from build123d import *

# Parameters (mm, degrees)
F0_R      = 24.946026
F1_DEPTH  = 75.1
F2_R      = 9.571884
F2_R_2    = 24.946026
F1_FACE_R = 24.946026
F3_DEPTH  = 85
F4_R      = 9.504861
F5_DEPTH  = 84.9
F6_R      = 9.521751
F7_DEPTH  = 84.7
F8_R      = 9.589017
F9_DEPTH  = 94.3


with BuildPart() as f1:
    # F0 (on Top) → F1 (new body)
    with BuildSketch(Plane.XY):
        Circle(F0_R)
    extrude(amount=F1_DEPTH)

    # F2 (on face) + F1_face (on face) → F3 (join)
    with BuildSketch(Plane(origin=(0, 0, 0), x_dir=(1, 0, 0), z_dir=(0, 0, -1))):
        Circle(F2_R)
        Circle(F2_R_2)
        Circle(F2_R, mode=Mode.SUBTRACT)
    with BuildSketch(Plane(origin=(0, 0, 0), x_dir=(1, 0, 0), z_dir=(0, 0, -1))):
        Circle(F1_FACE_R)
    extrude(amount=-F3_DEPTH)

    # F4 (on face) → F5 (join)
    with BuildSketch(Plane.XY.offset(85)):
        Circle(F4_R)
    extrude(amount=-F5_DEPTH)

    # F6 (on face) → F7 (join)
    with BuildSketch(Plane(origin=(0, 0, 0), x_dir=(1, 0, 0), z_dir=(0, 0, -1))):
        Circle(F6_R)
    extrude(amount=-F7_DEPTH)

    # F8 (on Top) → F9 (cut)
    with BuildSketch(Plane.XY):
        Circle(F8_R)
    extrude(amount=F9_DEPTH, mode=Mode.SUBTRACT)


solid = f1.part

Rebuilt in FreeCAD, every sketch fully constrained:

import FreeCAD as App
import Part
import Sketcher

V = App.Vector

doc = App.newDocument("Part")
body = doc.addObject("PartDesign::Body", "Body")

# Sketch on XY plane
sketch1 = doc.addObject("Sketcher::SketchObject", "Sketch")
body.addObject(sketch1)
sketch1.AttachmentSupport = (doc.XY_Plane, [""])
sketch1.MapMode = "FlatFace"
sketch1.addGeometry(Part.Circle(V(0, 0, 0), V(0, 0, 1), 24.946026), False)
sketch1.addConstraint([
    Sketcher.Constraint("Coincident", 0, 3, -1, 1),
    Sketcher.Constraint("Diameter", 0, 49.892052),
])
pad1 = doc.addObject("PartDesign::Pad", "Pad")
body.addObject(pad1)
pad1.Profile = sketch1
pad1.Length = 75.1

# Sketch on XY plane
sketch2 = doc.addObject("Sketcher::SketchObject", "Sketch001")
body.addObject(sketch2)
sketch2.AttachmentSupport = (doc.XY_Plane, [""])
sketch2.MapMode = "FlatFace"
sketch2.addGeometry(Part.Circle(V(0, 0, 0), V(0, 0, 1), 24.946026), False)
sketch2.addConstraint([
    Sketcher.Constraint("Coincident", 0, 3, -1, 1),
    Sketcher.Constraint("Diameter", 0, 49.892052),
])
pad2 = doc.addObject("PartDesign::Pad", "Pad001")
body.addObject(pad2)
pad2.Profile = sketch2
pad2.Length = 85

# Sketch on XY plane
sketch3 = doc.addObject("Sketcher::SketchObject", "Sketch002")
body.addObject(sketch3)
sketch3.AttachmentSupport = (doc.XY_Plane, [""])
sketch3.MapMode = "FlatFace"
sketch3.AttachmentOffset = App.Placement(V(0, 0, 85), App.Rotation())
sketch3.addGeometry(Part.Circle(V(0, 0, 0), V(0, 0, 1), 9.504861), False)
sketch3.addConstraint([
    Sketcher.Constraint("Coincident", 0, 3, -1, 1),
    Sketcher.Constraint("Diameter", 0, 19.009722),
])
pad3 = doc.addObject("PartDesign::Pad", "Pad002")
body.addObject(pad3)
pad3.Profile = sketch3
pad3.Length = 84.9
pad3.Reversed = True

# Sketch on XY plane
sketch4 = doc.addObject("Sketcher::SketchObject", "Sketch003")
body.addObject(sketch4)
sketch4.AttachmentSupport = (doc.XY_Plane, [""])
sketch4.MapMode = "FlatFace"
sketch4.addGeometry(Part.Circle(V(0, 0, 0), V(0, 0, 1), 9.521751), False)
sketch4.addConstraint([
    Sketcher.Constraint("Coincident", 0, 3, -1, 1),
    Sketcher.Constraint("Diameter", 0, 19.043502),
])
pad4 = doc.addObject("PartDesign::Pad", "Pad003")
body.addObject(pad4)
pad4.Profile = sketch4
pad4.Length = 84.7

# Sketch on XY plane
sketch5 = doc.addObject("Sketcher::SketchObject", "Sketch004")
body.addObject(sketch5)
sketch5.AttachmentSupport = (doc.XY_Plane, [""])
sketch5.MapMode = "FlatFace"
sketch5.addGeometry(Part.Circle(V(0, 0, 0), V(0, 0, 1), 9.589017), False)
sketch5.addConstraint([
    Sketcher.Constraint("Coincident", 0, 3, -1, 1),
    Sketcher.Constraint("Diameter", 0, 19.178034),
])
pocket1 = doc.addObject("PartDesign::Pocket", "Pocket")
body.addObject(pocket1)
pocket1.Profile = sketch5
pocket1.Length = 94.3
pocket1.Reversed = True

doc.recompute()
